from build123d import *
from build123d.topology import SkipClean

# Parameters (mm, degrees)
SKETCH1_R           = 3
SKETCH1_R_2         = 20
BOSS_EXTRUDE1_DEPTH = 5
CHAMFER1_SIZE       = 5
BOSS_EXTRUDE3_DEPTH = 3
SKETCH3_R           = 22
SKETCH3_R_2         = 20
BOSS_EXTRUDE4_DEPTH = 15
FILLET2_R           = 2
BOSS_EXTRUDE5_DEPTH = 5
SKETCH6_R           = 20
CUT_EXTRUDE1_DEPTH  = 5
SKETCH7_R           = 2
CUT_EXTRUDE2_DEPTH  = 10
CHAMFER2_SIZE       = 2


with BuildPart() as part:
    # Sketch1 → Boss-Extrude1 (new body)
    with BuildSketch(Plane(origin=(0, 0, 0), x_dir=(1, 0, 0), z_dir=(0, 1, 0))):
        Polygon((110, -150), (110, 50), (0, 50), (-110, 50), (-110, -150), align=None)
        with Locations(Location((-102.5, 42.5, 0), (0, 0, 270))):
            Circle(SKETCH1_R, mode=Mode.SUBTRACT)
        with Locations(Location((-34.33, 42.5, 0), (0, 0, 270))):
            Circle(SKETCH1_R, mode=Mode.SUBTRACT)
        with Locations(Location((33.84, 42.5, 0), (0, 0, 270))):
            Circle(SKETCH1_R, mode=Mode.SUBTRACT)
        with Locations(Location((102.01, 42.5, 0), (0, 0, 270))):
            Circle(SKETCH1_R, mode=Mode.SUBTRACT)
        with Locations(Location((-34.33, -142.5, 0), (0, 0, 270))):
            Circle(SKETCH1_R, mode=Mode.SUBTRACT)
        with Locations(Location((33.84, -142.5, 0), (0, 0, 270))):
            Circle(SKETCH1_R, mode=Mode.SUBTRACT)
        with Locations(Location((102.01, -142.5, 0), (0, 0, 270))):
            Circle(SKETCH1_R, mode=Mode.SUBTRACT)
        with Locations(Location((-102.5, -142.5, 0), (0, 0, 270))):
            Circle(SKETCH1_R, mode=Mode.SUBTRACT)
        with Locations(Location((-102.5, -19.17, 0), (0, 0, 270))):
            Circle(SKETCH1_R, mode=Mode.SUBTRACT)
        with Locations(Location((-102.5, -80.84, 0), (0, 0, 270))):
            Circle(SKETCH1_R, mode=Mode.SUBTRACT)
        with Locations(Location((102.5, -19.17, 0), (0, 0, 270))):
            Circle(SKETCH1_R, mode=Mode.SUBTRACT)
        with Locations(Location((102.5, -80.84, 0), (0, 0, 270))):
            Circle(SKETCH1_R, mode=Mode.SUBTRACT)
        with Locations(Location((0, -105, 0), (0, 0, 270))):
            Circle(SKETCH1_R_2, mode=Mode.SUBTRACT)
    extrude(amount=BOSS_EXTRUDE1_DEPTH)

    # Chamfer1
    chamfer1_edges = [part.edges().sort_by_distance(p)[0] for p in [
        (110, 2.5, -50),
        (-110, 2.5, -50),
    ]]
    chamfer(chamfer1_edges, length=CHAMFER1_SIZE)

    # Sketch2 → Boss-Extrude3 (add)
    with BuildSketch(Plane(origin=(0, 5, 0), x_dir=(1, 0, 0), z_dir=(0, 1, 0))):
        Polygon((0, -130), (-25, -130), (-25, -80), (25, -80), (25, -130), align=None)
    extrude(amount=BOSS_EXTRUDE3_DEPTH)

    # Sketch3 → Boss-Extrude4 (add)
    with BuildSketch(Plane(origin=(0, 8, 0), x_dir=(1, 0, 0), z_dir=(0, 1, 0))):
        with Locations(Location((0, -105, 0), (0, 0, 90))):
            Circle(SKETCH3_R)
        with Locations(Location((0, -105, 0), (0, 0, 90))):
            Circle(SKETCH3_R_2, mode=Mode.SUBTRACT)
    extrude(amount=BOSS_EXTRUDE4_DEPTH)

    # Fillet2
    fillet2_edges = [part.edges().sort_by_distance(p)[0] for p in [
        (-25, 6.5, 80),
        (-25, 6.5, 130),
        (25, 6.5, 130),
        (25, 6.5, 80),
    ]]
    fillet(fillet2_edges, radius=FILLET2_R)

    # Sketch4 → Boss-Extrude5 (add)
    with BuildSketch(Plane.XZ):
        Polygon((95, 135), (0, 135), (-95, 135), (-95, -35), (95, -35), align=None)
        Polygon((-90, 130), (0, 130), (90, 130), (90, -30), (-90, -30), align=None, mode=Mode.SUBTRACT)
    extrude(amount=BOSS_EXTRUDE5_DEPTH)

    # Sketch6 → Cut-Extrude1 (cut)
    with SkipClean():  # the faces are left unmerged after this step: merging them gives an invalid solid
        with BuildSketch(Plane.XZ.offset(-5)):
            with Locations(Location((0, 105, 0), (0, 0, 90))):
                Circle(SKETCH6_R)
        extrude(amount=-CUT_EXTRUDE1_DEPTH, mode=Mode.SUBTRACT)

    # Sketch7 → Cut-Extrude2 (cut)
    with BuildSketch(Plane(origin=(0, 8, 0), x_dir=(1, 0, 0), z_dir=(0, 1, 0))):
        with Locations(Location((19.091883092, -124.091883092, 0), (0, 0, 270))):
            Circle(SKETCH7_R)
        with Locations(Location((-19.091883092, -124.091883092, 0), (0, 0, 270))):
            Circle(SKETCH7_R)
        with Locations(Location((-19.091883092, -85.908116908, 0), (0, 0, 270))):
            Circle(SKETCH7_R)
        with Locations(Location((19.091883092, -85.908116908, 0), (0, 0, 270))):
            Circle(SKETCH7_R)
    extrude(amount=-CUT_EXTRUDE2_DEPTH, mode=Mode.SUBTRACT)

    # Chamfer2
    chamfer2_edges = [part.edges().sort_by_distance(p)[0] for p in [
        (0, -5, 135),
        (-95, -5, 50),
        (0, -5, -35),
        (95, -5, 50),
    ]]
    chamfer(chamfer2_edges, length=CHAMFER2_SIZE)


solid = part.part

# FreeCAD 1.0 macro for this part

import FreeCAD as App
import Part
import Sketcher


def edges_at(feature, points):
    """Names of the edges that pass closest to the given points."""
    edges = feature.Shape.Edges
    near = lambda p: min(range(len(edges)), key=lambda i: edges[i].distToShape(Part.Vertex(*p))[0])
    return sorted({f"Edge{near(p) + 1}" for p in points})


def add_polygon(sketch, points):
    """Adds a closed chain of lines whose ends are joined by coincident constraints."""
    first, n = sketch.GeometryCount, len(points)
    for a, b in zip(points, points[1:] + points[:1]):
        sketch.addGeometry(Part.LineSegment(App.Vector(*a, 0), App.Vector(*b, 0)), False)
    for i in range(n):
        sketch.addConstraint(Sketcher.Constraint("Coincident", first + i, 2, first + (i + 1) % n, 1))

doc = App.newDocument("Part")
body = doc.addObject("PartDesign::Body", "Body")

# Sketch on XZ plane
sketch1 = doc.addObject("Sketcher::SketchObject", "Sketch")
body.addObject(sketch1)
sketch1.AttachmentSupport = (doc.XZ_Plane, [""])
sketch1.MapMode = "FlatFace"
add_polygon(sketch1, [(110, 150), (110, -50), (-110, -50), (-110, 150)])  # lines 0-3
sketch1.addGeometry(Part.Circle(App.Vector(-102.5, 142.5, 0), App.Vector(0, 0, 1), 3), False)  # 4
sketch1.addGeometry(Part.Circle(App.Vector(-34.3, 142.5, 0), App.Vector(0, 0, 1), 3), False)  # 5
sketch1.addGeometry(Part.Circle(App.Vector(-102.5, 80.8, 0), App.Vector(0, 0, 1), 3), False)  # 6
sketch1.addGeometry(Part.Circle(App.Vector(33.8, 142.5, 0), App.Vector(0, 0, 1), 3), False)  # 7
sketch1.addGeometry(Part.Circle(App.Vector(0, 105, 0), App.Vector(0, 0, 1), 20), False)  # 8
sketch1.addGeometry(Part.Circle(App.Vector(102, 142.5, 0), App.Vector(0, 0, 1), 3), False)  # 9
sketch1.addGeometry(Part.Circle(App.Vector(102.5, 80.8, 0), App.Vector(0, 0, 1), 3), False)  # 10
sketch1.addGeometry(Part.Circle(App.Vector(-102.5, 19.2, 0), App.Vector(0, 0, 1), 3), False)  # 11
sketch1.addGeometry(Part.Circle(App.Vector(-102.5, -42.5, 0), App.Vector(0, 0, 1), 3), False)  # 12
sketch1.addGeometry(Part.Circle(App.Vector(-34.3, -42.5, 0), App.Vector(0, 0, 1), 3), False)  # 13
sketch1.addGeometry(Part.Circle(App.Vector(102.5, 19.2, 0), App.Vector(0, 0, 1), 3), False)  # 14
sketch1.addGeometry(Part.Circle(App.Vector(33.8, -42.5, 0), App.Vector(0, 0, 1), 3), False)  # 15
sketch1.addGeometry(Part.Circle(App.Vector(102, -42.5, 0), App.Vector(0, 0, 1), 3), False)  # 16
sketch1.addConstraint([
    Sketcher.Constraint("Vertical", 0),
    Sketcher.Constraint("Horizontal", 1),
    Sketcher.Constraint("Vertical", 2),
    Sketcher.Constraint("Horizontal", 3),
    Sketcher.Constraint("Equal", 4, 5),
    Sketcher.Constraint("Equal", 5, 6),
    Sketcher.Constraint("Equal", 6, 7),
    Sketcher.Constraint("Equal", 7, 9),
    Sketcher.Constraint("Equal", 9, 10),
    Sketcher.Constraint("Equal", 10, 11),
    Sketcher.Constraint("Equal", 11, 12),
    Sketcher.Constraint("Equal", 12, 13),
    Sketcher.Constraint("Equal", 13, 14),
    Sketcher.Constraint("Equal", 14, 15),
    Sketcher.Constraint("Equal", 15, 16),
    Sketcher.Constraint("Symmetric", 6, 3, 10, 3, -2),
    Sketcher.Constraint("Symmetric", 11, 3, 14, 3, -2),
    Sketcher.Constraint("PointOnObject", 8, 3, -2),
    Sketcher.Constraint("Horizontal", 4, 3, 5, 3),
    Sketcher.Constraint("Horizontal", 5, 3, 7, 3),
    Sketcher.Constraint("Horizontal", 7, 3, 9, 3),
    Sketcher.Constraint("Horizontal", 12, 3, 13, 3),
    Sketcher.Constraint("Horizontal", 13, 3, 15, 3),
    Sketcher.Constraint("Horizontal", 15, 3, 16, 3),
    Sketcher.Constraint("Vertical", 4, 3, 6, 3),
    Sketcher.Constraint("Vertical", 6, 3, 11, 3),
    Sketcher.Constraint("Vertical", 11, 3, 12, 3),
    Sketcher.Constraint("Vertical", 5, 3, 13, 3),
    Sketcher.Constraint("Vertical", 7, 3, 15, 3),
    Sketcher.Constraint("Vertical", 9, 3, 16, 3),
    Sketcher.Constraint("Diameter", 4, 6.0),
    Sketcher.Constraint("Diameter", 8, 40.0),
    Sketcher.Constraint("DistanceX", 1, 2, 1, 1, 220.0),
    Sketcher.Constraint("DistanceY", 0, 2, 0, 1, 200.0),
    Sketcher.Constraint("DistanceY", -1, 1, 8, 3, 105.0),
    Sketcher.Constraint("DistanceX", -1, 1, 0, 2, 110.0),
    Sketcher.Constraint("DistanceY", 0, 2, -1, 1, 50.0),
    Sketcher.Constraint("DistanceX", 6, 3, 10, 3, 205.0),
    Sketcher.Constraint("DistanceY", 12, 3, 4, 3, 185.0),
    Sketcher.Constraint("DistanceY", -1, 1, 4, 3, 142.5),
    Sketcher.Constraint("DistanceX", 5, 3, -1, 1, 34.33),
    Sketcher.Constraint("DistanceY", -1, 1, 6, 3, 80.84),
    Sketcher.Constraint("DistanceX", -1, 1, 7, 3, 33.84),
    Sketcher.Constraint("DistanceX", -1, 1, 9, 3, 102.01),
    Sketcher.Constraint("DistanceY", -1, 1, 11, 3, 19.17),
])
pad1 = doc.addObject("PartDesign::Pad", "Pad")
body.addObject(pad1)
pad1.Profile = sketch1
pad1.Length = 5
pad1.Reversed = True
doc.recompute()

chamfer = doc.addObject("PartDesign::Chamfer", "Chamfer")
body.addObject(chamfer)
chamfer.Base = (pad1, edges_at(pad1, [(110, 2.5, -50), (-110, 2.5, -50)]))
chamfer.Size = 5

# Sketch on XZ plane
sketch2 = doc.addObject("Sketcher::SketchObject", "Sketch001")
body.addObject(sketch2)
sketch2.AttachmentSupport = (doc.XZ_Plane, [""])
sketch2.MapMode = "FlatFace"
sketch2.AttachmentOffset = App.Placement(App.Vector(0, 0, -5), App.Rotation())
add_polygon(sketch2, [(-25, 130), (25, 130), (25, 80), (-25, 80)])  # lines 0-3
sketch2.addConstraint([
    Sketcher.Constraint("Horizontal", 0),
    Sketcher.Constraint("Vertical", 1),
    Sketcher.Constraint("Horizontal", 2),
    Sketcher.Constraint("Vertical", 3),
    Sketcher.Constraint("Equal", 2, 1),
    Sketcher.Constraint("DistanceX", 0, 1, 0, 2, 50.0),
    Sketcher.Constraint("DistanceX", -1, 1, 0, 2, 25.0),
    Sketcher.Constraint("DistanceY", -1, 1, 0, 2, 130.0),
])
pad2 = doc.addObject("PartDesign::Pad", "Pad001")
body.addObject(pad2)
pad2.Profile = sketch2
pad2.Length = 3
pad2.Reversed = True

# Sketch on XZ plane
sketch3 = doc.addObject("Sketcher::SketchObject", "Sketch002")
body.addObject(sketch3)
sketch3.AttachmentSupport = (doc.XZ_Plane, [""])
sketch3.MapMode = "FlatFace"
sketch3.AttachmentOffset = App.Placement(App.Vector(0, 0, -8), App.Rotation())
sketch3.addGeometry([
    Part.Circle(App.Vector(0, 105, 0), App.Vector(0, 0, 1), 22),
    Part.Circle(App.Vector(0, 105, 0), App.Vector(0, 0, 1), 20),
], False)
sketch3.addConstraint([
    Sketcher.Constraint("Coincident", 1, 3, 0, 3),
    Sketcher.Constraint("PointOnObject", 0, 3, -2),
    Sketcher.Constraint("Diameter", 0, 44.0),
    Sketcher.Constraint("Diameter", 1, 40.0),
    Sketcher.Constraint("DistanceY", -1, 1, 0, 3, 105.0),
])
pad3 = doc.addObject("PartDesign::Pad", "Pad002")
body.addObject(pad3)
pad3.Profile = sketch3
pad3.Length = 15
pad3.Reversed = True
doc.recompute()

fillet = doc.addObject("PartDesign::Fillet", "Fillet")
body.addObject(fillet)
fillet.Base = (pad3, edges_at(pad3, [
    (-25, 6.5, 80),
    (-25, 6.5, 130),
    (25, 6.5, 130),
    (25, 6.5, 80),
]))
fillet.Radius = 2

# Sketch on XZ plane
sketch4 = doc.addObject("Sketcher::SketchObject", "Sketch003")
body.addObject(sketch4)
sketch4.AttachmentSupport = (doc.XZ_Plane, [""])
sketch4.MapMode = "FlatFace"
add_polygon(sketch4, [(95, 135), (-95, 135), (-95, -35), (95, -35)])  # lines 0-3
add_polygon(sketch4, [(-90, -30), (-90, 130), (90, 130), (90, -30)])  # lines 4-7
sketch4.addConstraint([
    Sketcher.Constraint("Horizontal", 0),
    Sketcher.Constraint("Vertical", 1),
    Sketcher.Constraint("Horizontal", 2),
    Sketcher.Constraint("Vertical", 3),
    Sketcher.Constraint("Vertical", 4),
    Sketcher.Constraint("Horizontal", 5),
    Sketcher.Constraint("Vertical", 6),
    Sketcher.Constraint("Horizontal", 7),
    Sketcher.Constraint("DistanceX", 0, 2, 0, 1, 190.0),
    Sketcher.Constraint("DistanceX", 5, 1, 5, 2, 180.0),
    Sketcher.Constraint("DistanceY", 1, 2, 1, 1, 170.0),
    Sketcher.Constraint("DistanceY", 4, 1, 4, 2, 160.0),
    Sketcher.Constraint("DistanceX", 0, 2, -1, 1, 95.0),
    Sketcher.Constraint("DistanceY", -1, 1, 0, 2, 135.0),
    Sketcher.Constraint("DistanceX", 4, 2, -1, 1, 90.0),
    Sketcher.Constraint("DistanceY", -1, 1, 4, 2, 130.0),
])
pad4 = doc.addObject("PartDesign::Pad", "Pad003")
body.addObject(pad4)
pad4.Profile = sketch4
pad4.Length = 5

# Sketch on XZ plane
sketch5 = doc.addObject("Sketcher::SketchObject", "Sketch004")
body.addObject(sketch5)
sketch5.AttachmentSupport = (doc.XZ_Plane, [""])
sketch5.MapMode = "FlatFace"
sketch5.AttachmentOffset = App.Placement(App.Vector(0, 0, -5), App.Rotation())
sketch5.addGeometry(Part.Circle(App.Vector(0, 105, 0), App.Vector(0, 0, 1), 20), False)
sketch5.addConstraint([
    Sketcher.Constraint("PointOnObject", 0, 3, -2),
    Sketcher.Constraint("Diameter", 0, 40.0),
    Sketcher.Constraint("DistanceY", -1, 1, 0, 3, 105.0),
])
pocket1 = doc.addObject("PartDesign::Pocket", "Pocket")
body.addObject(pocket1)
pocket1.Profile = sketch5
pocket1.Length = 5

# Sketch on XZ plane
sketch6 = doc.addObject("Sketcher::SketchObject", "Sketch005")
body.addObject(sketch6)
sketch6.AttachmentSupport = (doc.XZ_Plane, [""])
sketch6.MapMode = "FlatFace"
sketch6.AttachmentOffset = App.Placement(App.Vector(0, 0, -8), App.Rotation())
sketch6.addGeometry([
    Part.Circle(App.Vector(19.1, 124.1, 0), App.Vector(0, 0, 1), 2),
    Part.Circle(App.Vector(-19.1, 124.1, 0), App.Vector(0, 0, 1), 2),
    Part.Circle(App.Vector(-19.1, 85.9, 0), App.Vector(0, 0, 1), 2),
    Part.Circle(App.Vector(19.1, 85.9, 0), App.Vector(0, 0, 1), 2),
], False)
sketch6.addConstraint([
    Sketcher.Constraint("Equal", 0, 1),
    Sketcher.Constraint("Equal", 1, 2),
    Sketcher.Constraint("Equal", 2, 3),
    Sketcher.Constraint("Symmetric", 0, 3, 1, 3, -2),
    Sketcher.Constraint("Symmetric", 2, 3, 3, 3, -2),
    Sketcher.Constraint("Vertical", 1, 3, 2, 3),
    Sketcher.Constraint("Diameter", 0, 4.0),
    Sketcher.Constraint("DistanceX", -1, 1, 0, 3, 19.091883),
    Sketcher.Constraint("DistanceY", -1, 1, 0, 3, 124.091883),
    Sketcher.Constraint("DistanceY", -1, 1, 2, 3, 85.908117),
])
pocket2 = doc.addObject("PartDesign::Pocket", "Pocket001")
body.addObject(pocket2)
pocket2.Profile = sketch6
pocket2.Length = 10
pocket2.Reversed = True
doc.recompute()

chamfer2 = doc.addObject("PartDesign::Chamfer", "Chamfer001")
body.addObject(chamfer2)
chamfer2.Base = (pocket2, edges_at(pocket2, [
    (0, -5, 135),
    (-95, -5, 50),
    (0, -5, -35),
    (95, -5, 50),
]))
chamfer2.Size = 2

doc.recompute()
